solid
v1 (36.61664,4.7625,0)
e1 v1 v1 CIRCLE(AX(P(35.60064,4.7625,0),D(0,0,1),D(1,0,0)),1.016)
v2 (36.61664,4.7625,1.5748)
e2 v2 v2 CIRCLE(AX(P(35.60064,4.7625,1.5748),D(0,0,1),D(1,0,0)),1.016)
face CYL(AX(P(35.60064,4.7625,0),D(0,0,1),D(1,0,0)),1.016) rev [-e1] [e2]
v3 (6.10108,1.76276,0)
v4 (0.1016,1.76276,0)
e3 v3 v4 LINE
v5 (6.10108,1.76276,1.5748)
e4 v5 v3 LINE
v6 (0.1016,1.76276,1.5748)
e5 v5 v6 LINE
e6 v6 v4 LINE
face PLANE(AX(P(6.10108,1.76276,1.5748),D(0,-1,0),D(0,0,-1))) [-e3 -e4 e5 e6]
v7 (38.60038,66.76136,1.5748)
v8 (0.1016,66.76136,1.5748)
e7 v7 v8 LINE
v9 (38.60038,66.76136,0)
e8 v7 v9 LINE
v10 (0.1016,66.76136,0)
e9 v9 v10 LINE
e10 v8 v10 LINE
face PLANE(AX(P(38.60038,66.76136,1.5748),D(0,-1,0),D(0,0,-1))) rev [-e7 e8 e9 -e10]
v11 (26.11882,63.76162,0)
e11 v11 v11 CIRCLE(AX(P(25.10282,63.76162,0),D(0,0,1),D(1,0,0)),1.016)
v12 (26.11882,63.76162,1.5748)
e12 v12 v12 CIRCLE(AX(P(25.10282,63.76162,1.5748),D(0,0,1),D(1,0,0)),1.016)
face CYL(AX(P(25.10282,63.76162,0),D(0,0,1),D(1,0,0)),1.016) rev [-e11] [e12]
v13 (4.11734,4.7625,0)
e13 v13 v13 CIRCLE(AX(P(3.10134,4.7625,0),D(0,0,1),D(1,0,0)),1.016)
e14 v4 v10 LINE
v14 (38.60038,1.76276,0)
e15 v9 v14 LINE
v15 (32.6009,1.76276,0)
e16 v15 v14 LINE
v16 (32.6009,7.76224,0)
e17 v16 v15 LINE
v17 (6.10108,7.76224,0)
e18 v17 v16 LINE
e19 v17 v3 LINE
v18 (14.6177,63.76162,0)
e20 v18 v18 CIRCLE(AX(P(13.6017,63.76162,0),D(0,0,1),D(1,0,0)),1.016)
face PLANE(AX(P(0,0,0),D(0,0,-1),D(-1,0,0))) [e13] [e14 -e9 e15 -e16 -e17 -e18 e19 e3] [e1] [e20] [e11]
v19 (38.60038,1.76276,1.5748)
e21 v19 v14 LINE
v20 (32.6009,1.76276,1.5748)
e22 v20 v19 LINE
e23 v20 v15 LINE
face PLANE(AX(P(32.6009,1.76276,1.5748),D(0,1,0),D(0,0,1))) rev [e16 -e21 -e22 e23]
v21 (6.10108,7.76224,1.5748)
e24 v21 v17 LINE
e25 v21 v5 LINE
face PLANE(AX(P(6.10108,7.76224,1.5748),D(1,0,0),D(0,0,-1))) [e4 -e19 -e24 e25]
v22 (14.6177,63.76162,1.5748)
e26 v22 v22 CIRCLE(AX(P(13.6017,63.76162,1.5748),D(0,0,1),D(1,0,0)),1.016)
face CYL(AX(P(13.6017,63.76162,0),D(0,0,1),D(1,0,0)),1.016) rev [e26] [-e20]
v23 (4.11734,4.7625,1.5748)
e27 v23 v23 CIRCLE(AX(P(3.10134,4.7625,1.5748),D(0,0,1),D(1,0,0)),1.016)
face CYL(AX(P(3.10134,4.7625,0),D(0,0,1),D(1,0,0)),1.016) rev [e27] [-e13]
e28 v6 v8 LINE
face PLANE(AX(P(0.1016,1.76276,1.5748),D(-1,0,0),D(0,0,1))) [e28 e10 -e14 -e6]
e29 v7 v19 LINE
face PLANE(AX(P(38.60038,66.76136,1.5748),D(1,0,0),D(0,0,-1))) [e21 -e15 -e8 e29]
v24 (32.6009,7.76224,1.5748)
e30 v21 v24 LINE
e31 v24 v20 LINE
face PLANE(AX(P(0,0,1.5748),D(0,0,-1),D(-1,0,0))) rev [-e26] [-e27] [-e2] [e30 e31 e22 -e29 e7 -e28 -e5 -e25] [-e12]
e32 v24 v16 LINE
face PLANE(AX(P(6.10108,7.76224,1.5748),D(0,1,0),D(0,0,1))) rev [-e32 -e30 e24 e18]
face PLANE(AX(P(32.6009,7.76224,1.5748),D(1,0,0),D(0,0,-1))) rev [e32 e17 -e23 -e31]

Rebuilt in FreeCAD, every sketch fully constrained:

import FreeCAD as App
import Part
import Sketcher
Q = App.Units.Quantity

doc = App.newDocument("Part")
body = doc.addObject("PartDesign::Body", "Body")

# Sketch on XY plane
sketch1 = doc.addObject("Sketcher::SketchObject", "Sketch")
body.addObject(sketch1)
sketch1.AttachmentSupport = (doc.XY_Plane, [""])
sketch1.MapMode = "FlatFace"
sketch1.addGeometry([
    Part.LineSegment(App.Vector(6, 8, 0), App.Vector(33, 8, 0)),  # 0
    Part.LineSegment(App.Vector(33, 8, 0), App.Vector(33, 2, 0)),  # 1
    Part.LineSegment(App.Vector(33, 2, 0), App.Vector(39, 2, 0)),  # 2
    Part.LineSegment(App.Vector(39, 2, 0), App.Vector(39, 67, 0)),  # 3
    Part.LineSegment(App.Vector(39, 67, 0), App.Vector(0, 67, 0)),  # 4
    Part.LineSegment(App.Vector(0, 67, 0), App.Vector(0, 2, 0)),  # 5
    Part.LineSegment(App.Vector(0, 2, 0), App.Vector(6, 2, 0)),  # 6
    Part.LineSegment(App.Vector(6, 2, 0), App.Vector(6, 8, 0)),  # 7
], False)
sketch1.addConstraint([
    Sketcher.Constraint("Coincident", 0, 2, 1, 1),
    Sketcher.Constraint("Coincident", 1, 2, 2, 1),
    Sketcher.Constraint("Coincident", 2, 2, 3, 1),
    Sketcher.Constraint("Coincident", 3, 2, 4, 1),
    Sketcher.Constraint("Coincident", 4, 2, 5, 1),
    Sketcher.Constraint("Coincident", 5, 2, 6, 1),
    Sketcher.Constraint("Coincident", 6, 2, 7, 1),
    Sketcher.Constraint("Coincident", 7, 2, 0, 1),
    Sketcher.Constraint("Horizontal", 0),
    Sketcher.Constraint("Vertical", 1),
    Sketcher.Constraint("Horizontal", 2),
    Sketcher.Constraint("Vertical", 3),
    Sketcher.Constraint("Horizontal", 4),
    Sketcher.Constraint("Vertical", 5),
    Sketcher.Constraint("Horizontal", 6),
    Sketcher.Constraint("Vertical", 7),
    Sketcher.Constraint("Horizontal", 2, 2, 5, 2),
    Sketcher.Constraint("Equal", 2, 6),
    Sketcher.Constraint("Equal", 6, 1),
    Sketcher.Constraint("DistanceY", 3, 1, 3, 2, Q("2.559 in")),
    Sketcher.Constraint("DistanceX", 0, 1, 0, 2, Q("1.0433 in")),
    Sketcher.Constraint("DistanceX", 2, 1, 2, 2, Q("0.2362 in")),
    Sketcher.Constraint("DistanceX", -1, 1, 4, 2, Q("0.004 in")),
    Sketcher.Constraint("DistanceY", -1, 1, 0, 2, Q("0.3056 in")),
])
pad1 = doc.addObject("PartDesign::Pad", "Pad")
body.addObject(pad1)
pad1.Profile = sketch1
pad1.Length = Q("0.062 in")

# Sketch on XY plane
sketch2 = doc.addObject("Sketcher::SketchObject", "Sketch001")
body.addObject(sketch2)
sketch2.AttachmentSupport = (doc.XY_Plane, [""])
sketch2.MapMode = "FlatFace"
sketch2.AttachmentOffset = App.Placement(App.Vector(0, 0, 0.062 * 25.4), App.Rotation())
sketch2.addGeometry([
    Part.Circle(App.Vector(13.6, 63.8, 0), App.Vector(0, 0, 1), 1),
    Part.Circle(App.Vector(25.1, 63.8, 0), App.Vector(0, 0, 1), 1),
    Part.Circle(App.Vector(3.1, 4.8, 0), App.Vector(0, 0, 1), 1),
    Part.Circle(App.Vector(35.6, 4.8, 0), App.Vector(0, 0, 1), 1),
], False)
sketch2.addConstraint([
    Sketcher.Constraint("Equal", 0, 1),
    Sketcher.Constraint("Equal", 1, 2),
    Sketcher.Constraint("Equal", 2, 3),
    Sketcher.Constraint("Horizontal", 0, 3, 1, 3),
    Sketcher.Constraint("Horizontal", 2, 3, 3, 3),
    Sketcher.Constraint("Diameter", 0, Q("0.08 in")),
    Sketcher.Constraint("DistanceY", -1, 1, 2, 3, Q("0.1875 in")),
    Sketcher.Constraint("DistanceX", -1, 1, 0, 3, Q("0.5355 in")),
    Sketcher.Constraint("DistanceY", -1, 1, 0, 3, Q("2.5103 in")),
    Sketcher.Constraint("DistanceX", -1, 1, 1, 3, Q("0.9883 in")),
    Sketcher.Constraint("DistanceX", -1, 1, 2, 3, Q("0.1221 in")),
    Sketcher.Constraint("DistanceX", -1, 1, 3, 3, Q("1.4016 in")),
])
pocket1 = doc.addObject("PartDesign::Pocket", "Pocket")
body.addObject(pocket1)
pocket1.Profile = sketch2
pocket1.Type = "ThroughAll"

doc.recompute()
